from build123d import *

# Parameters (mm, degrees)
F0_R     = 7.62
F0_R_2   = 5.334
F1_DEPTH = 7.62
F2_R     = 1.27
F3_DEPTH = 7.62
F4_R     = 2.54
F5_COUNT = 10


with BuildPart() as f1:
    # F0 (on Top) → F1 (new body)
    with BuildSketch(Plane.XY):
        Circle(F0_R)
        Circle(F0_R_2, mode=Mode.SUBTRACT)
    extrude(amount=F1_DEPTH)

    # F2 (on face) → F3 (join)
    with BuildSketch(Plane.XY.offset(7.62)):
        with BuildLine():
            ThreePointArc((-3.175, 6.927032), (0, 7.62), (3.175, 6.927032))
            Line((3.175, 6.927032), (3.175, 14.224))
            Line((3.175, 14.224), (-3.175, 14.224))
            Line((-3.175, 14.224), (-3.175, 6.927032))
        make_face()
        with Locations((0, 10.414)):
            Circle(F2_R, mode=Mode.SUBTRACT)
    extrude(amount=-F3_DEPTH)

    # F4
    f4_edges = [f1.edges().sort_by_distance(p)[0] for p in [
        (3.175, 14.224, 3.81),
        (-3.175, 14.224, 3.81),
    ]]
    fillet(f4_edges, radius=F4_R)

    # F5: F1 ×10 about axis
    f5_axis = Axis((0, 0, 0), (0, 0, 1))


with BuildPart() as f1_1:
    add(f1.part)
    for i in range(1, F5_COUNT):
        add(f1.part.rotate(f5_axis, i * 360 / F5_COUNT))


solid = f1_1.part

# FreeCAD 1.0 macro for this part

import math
import FreeCAD as App
import Part
import Sketcher

V = App.Vector
Q = App.Units.Quantity


def edges_at(feature, points):
    """Names of the edges that pass closest to the given points."""
    edges = feature.Shape.Edges
    near = lambda p: min(range(len(edges)), key=lambda i: edges[i].distToShape(Part.Vertex(*p))[0])
    return sorted({f"Edge{near(p) + 1}" for p in points})

doc = App.newDocument("Part")
params = doc.addObject("Spreadsheet::Sheet", "Params")
for row, (alias, value) in enumerate([
    ("sketch1_diameter", "0.6 in"),
    ("sketch1_diameter2", "0.42 in"),
    ("pad1_length", "0.3 in"),
    ("sketch2_diameter", "0.1 in"),
    ("sketch2_radius", "0.2999999 in"),
    ("sketch2_width", "0.25 in"),
    ("pad2_length", "0.3 in"),
    ("fillet_radius", "0.1 in"),
], start=1):
    params.set(f"A{row}", alias)
    params.set(f"B{row}", "=" + value)
    params.setAlias(f"B{row}", alias)

body = doc.addObject("PartDesign::Body", "Body")

# Sketch on XY plane
sketch1 = body.newObject("Sketcher::SketchObject", "Sketch")
sketch1.AttachmentSupport = (doc.getObject("XY_Plane"), [""])
sketch1.MapMode = "FlatFace"
sketch1.addGeometry([
    Part.Circle(V(0, 0, 0), V(0, 0, 1), 8),
    Part.Circle(V(0, 0, 0), V(0, 0, 1), 5),
], False)
sketch1.addConstraint([
    Sketcher.Constraint("Coincident", 0, 3, -1, 1),
    Sketcher.Constraint("Coincident", 1, 3, -1, 1),
    Sketcher.Constraint("Diameter", 0, Q("0.6 in")),
    Sketcher.Constraint("Diameter", 1, Q("0.42 in")),
])
sketch1.setExpression("Constraints[2]", "Params.sketch1_diameter")
sketch1.setExpression("Constraints[3]", "Params.sketch1_diameter2")
pad1 = body.newObject("PartDesign::Pad", "Pad")
pad1.Profile = sketch1
pad1.setExpression("Length", "Params.pad1_length")

# Sketch on XY plane
sketch2 = body.newObject("Sketcher::SketchObject", "Sketch001")
sketch2.AttachmentSupport = (doc.getObject("XY_Plane"), [""])
sketch2.MapMode = "FlatFace"
sketch2.AttachmentOffset = App.Placement(V(0, 0, 0.3 * 25.4), App.Rotation())
sketch2.addGeometry([
    Part.ArcOfCircle(Part.Circle(V(0, 0, 0), V(0, 0, 1), 7.6), math.radians(65), math.radians(115)),  # 0
    Part.LineSegment(V(3.2, 6.9, 0), V(3.2, 14.2, 0)),  # 1
    Part.LineSegment(V(3.2, 14.2, 0), V(-3.2, 14.2, 0)),  # 2
    Part.LineSegment(V(-3.2, 14.2, 0), V(-3.2, 6.9, 0)),  # 3
    Part.Circle(V(0, 10.4, 0), V(0, 0, 1), 1.3),  # 4
], False)
sketch2.addConstraint([
    Sketcher.Constraint("Coincident", 0, 1, 1, 1),
    Sketcher.Constraint("Coincident", 1, 2, 2, 1),
    Sketcher.Constraint("Coincident", 2, 2, 3, 1),
    Sketcher.Constraint("Coincident", 3, 2, 0, 2),
    Sketcher.Constraint("Vertical", 1),
    Sketcher.Constraint("Horizontal", 2),
    Sketcher.Constraint("Vertical", 3),
    Sketcher.Constraint("Coincident", 0, 3, -1, 1),
    Sketcher.Constraint("PointOnObject", 4, 3, -2),
    Sketcher.Constraint("Horizontal", 0, 1, 3, 2),
    Sketcher.Constraint("Diameter", 4, Q("0.1 in")),
    Sketcher.Constraint("Radius", 0, Q("0.2999999 in")),
    Sketcher.Constraint("DistanceX", 2, 2, 2, 1, Q("0.25 in")),
    Sketcher.Constraint("DistanceY", -1, 1, 4, 3, Q("0.41 in")),
    Sketcher.Constraint("DistanceY", -1, 1, 1, 2, Q("0.56 in")),
])
sketch2.setExpression("Constraints[10]", "Params.sketch2_diameter")
sketch2.setExpression("Constraints[11]", "Params.sketch2_radius")
sketch2.setExpression("Constraints[12]", "Params.sketch2_width")
pad2 = body.newObject("PartDesign::Pad", "Pad001")
pad2.Profile = sketch2
pad2.setExpression("Length", "Params.pad2_length")
pad2.Reversed = True
doc.recompute()

fillet = body.newObject("PartDesign::Fillet", "Fillet")
fillet.Base = (pad2, edges_at(pad2, [(3.175, 14.224, 3.81), (-3.175, 14.224, 3.81)]))
fillet.setExpression("Radius", "Params.fillet_radius")
body2 = doc.addObject("PartDesign::Body", "Body001")
doc.recompute()

body2.BaseFeature = body
doc.recompute()

body3 = doc.addObject("PartDesign::Body", "Body002")
body3.BaseFeature = body
body3.Placement = App.Placement(V(0, 0, 0), App.Rotation(V(0, 0, 1), 36))
boolean = body2.newObject("PartDesign::Boolean", "Boolean")
boolean.Type = "Fuse"
boolean.addObjects([body3])
doc.recompute()

body4 = doc.addObject("PartDesign::Body", "Body003")
body4.BaseFeature = body
body4.Placement = App.Placement(V(0, 0, 0), App.Rotation(V(0, 0, 1), 72))
boolean2 = body2.newObject("PartDesign::Boolean", "Boolean001")
boolean2.Type = "Fuse"
boolean2.addObjects([body4])
doc.recompute()

body5 = doc.addObject("PartDesign::Body", "Body004")
body5.BaseFeature = body
body5.Placement = App.Placement(V(0, 0, 0), App.Rotation(V(0, 0, 1), 108))
boolean3 = body2.newObject("PartDesign::Boolean", "Boolean002")
boolean3.Type = "Fuse"
boolean3.addObjects([body5])
doc.recompute()

body6 = doc.addObject("PartDesign::Body", "Body005")
body6.BaseFeature = body
body6.Placement = App.Placement(V(0, 0, 0), App.Rotation(V(0, 0, 1), 144))
boolean4 = body2.newObject("PartDesign::Boolean", "Boolean003")
boolean4.Type = "Fuse"
boolean4.addObjects([body6])
doc.recompute()

body7 = doc.addObject("PartDesign::Body", "Body006")
body7.BaseFeature = body
body7.Placement = App.Placement(V(0, 0, 0), App.Rotation(V(0, 0, 1), 180))
boolean5 = body2.newObject("PartDesign::Boolean", "Boolean004")
boolean5.Type = "Fuse"
boolean5.addObjects([body7])
doc.recompute()

body8 = doc.addObject("PartDesign::Body", "Body007")
body8.BaseFeature = body
body8.Placement = App.Placement(V(0, 0, 0), App.Rotation(V(0, 0, 1), 216))
boolean6 = body2.newObject("PartDesign::Boolean", "Boolean005")
boolean6.Type = "Fuse"
boolean6.addObjects([body8])
doc.recompute()

body9 = doc.addObject("PartDesign::Body", "Body008")
body9.BaseFeature = body
body9.Placement = App.Placement(V(0, 0, 0), App.Rotation(V(0, 0, 1), 252))
boolean7 = body2.newObject("PartDesign::Boolean", "Boolean006")
boolean7.Type = "Fuse"
boolean7.addObjects([body9])
doc.recompute()

body10 = doc.addObject("PartDesign::Body", "Body009")
body10.BaseFeature = body
body10.Placement = App.Placement(V(0, 0, 0), App.Rotation(V(0, 0, 1), 288))
boolean8 = body2.newObject("PartDesign::Boolean", "Boolean007")
boolean8.Type = "Fuse"
boolean8.addObjects([body10])
doc.recompute()

body.Placement = App.Placement(V(0, 0, 0), App.Rotation(V(0, 0, 1), 324))
boolean9 = body2.newObject("PartDesign::Boolean", "Boolean008")
boolean9.Type = "Fuse"
boolean9.addObjects([body])

doc.recompute()
